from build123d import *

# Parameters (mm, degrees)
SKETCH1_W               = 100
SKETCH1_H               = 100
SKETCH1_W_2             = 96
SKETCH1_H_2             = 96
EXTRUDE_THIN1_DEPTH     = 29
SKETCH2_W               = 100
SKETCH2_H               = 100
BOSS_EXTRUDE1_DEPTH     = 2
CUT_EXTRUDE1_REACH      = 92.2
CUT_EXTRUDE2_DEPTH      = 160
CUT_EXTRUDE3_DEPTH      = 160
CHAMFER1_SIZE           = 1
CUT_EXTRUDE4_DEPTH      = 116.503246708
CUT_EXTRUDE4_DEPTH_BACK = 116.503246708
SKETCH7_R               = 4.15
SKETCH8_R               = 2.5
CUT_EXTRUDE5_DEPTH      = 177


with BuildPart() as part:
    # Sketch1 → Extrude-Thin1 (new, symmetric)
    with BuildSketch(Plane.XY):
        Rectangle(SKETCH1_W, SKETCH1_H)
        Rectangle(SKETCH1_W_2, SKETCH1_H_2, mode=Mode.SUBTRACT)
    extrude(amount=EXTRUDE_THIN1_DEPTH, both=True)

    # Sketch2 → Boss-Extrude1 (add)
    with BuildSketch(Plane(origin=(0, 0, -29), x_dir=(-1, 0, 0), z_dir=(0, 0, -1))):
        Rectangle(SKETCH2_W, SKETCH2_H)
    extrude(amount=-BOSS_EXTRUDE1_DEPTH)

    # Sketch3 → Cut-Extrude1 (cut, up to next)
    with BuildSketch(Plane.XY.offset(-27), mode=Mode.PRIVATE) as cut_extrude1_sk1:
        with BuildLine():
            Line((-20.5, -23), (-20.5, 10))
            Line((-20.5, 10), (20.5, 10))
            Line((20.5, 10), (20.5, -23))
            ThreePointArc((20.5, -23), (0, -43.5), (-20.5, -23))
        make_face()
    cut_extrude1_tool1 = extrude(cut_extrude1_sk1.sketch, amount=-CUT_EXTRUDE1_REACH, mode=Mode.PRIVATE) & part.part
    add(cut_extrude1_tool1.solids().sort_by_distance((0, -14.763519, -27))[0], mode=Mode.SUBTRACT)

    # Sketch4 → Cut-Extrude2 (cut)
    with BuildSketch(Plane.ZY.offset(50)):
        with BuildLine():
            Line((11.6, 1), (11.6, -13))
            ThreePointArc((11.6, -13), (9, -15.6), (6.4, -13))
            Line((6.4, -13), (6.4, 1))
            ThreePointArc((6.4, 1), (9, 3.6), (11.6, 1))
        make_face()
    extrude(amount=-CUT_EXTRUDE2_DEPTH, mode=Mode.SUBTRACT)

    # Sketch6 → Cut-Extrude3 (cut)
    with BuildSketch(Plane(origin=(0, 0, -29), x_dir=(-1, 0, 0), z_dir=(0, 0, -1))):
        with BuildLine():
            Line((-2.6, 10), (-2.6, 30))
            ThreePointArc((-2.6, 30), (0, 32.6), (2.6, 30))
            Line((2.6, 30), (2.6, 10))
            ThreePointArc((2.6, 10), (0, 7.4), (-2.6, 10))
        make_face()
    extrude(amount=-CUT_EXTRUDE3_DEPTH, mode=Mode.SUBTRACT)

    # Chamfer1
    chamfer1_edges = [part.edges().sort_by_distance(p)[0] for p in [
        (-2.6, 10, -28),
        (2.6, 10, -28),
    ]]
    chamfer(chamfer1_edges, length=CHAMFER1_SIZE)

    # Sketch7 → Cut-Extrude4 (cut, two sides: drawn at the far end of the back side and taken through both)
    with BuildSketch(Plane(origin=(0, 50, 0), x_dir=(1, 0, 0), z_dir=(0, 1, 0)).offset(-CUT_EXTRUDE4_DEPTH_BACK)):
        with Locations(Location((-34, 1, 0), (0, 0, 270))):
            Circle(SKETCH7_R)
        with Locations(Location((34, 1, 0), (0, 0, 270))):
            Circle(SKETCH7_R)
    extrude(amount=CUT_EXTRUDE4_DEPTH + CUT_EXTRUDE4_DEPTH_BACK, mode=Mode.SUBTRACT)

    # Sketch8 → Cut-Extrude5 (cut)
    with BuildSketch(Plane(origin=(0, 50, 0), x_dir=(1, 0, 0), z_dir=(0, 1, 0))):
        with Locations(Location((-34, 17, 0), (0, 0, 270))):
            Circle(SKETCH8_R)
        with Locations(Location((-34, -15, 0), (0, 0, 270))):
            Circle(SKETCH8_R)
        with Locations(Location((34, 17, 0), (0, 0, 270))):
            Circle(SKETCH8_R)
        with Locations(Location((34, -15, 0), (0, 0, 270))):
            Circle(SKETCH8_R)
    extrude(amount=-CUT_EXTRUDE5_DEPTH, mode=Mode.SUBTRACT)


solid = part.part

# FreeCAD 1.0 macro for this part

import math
import FreeCAD as App
import Part
import Sketcher
Q = App.Units.Quantity


def edges_at(feature, points):
    """Names of the edges that pass closest to the given points."""
    edges = feature.Shape.Edges
    near = lambda p: min(range(len(edges)), key=lambda i: edges[i].distToShape(Part.Vertex(*p))[0])
    return sorted({f"Edge{near(p) + 1}" for p in points})


def add_polygon(sketch, points):
    """Adds a closed chain of lines whose ends are joined by coincident constraints."""
    first, n = sketch.GeometryCount, len(points)
    for a, b in zip(points, points[1:] + points[:1]):
        sketch.addGeometry(Part.LineSegment(App.Vector(*a, 0), App.Vector(*b, 0)), False)
    for i in range(n):
        sketch.addConstraint(Sketcher.Constraint("Coincident", first + i, 2, first + (i + 1) % n, 1))

doc = App.newDocument("Part")
params = doc.addObject("Spreadsheet::Sheet", "Params")
for row, (alias, value) in enumerate([
    ("sketch1_width", "100 mm"),
    ("sketch1_width2", "96 mm"),
    ("pad1_length", "58 mm"),
    ("sketch2_width", "100 mm"),
    ("pad2_length", "2 mm"),
    ("sketch3_radius", "20.5 mm"),
    ("sketch3_height", "33 mm"),
    ("sketch4_radius", "2.6 mm"),
    ("sketch4_width", "14 mm"),
    ("pocket2_length", "160 mm"),
    ("sketch5_radius", "2.6 mm"),
    ("sketch5_height", "20 mm"),
    ("pocket3_length", "160 mm"),
    ("chamfer_size", "1 mm"),
    ("sketch6_diameter", "8.3 mm"),
    ("sketch7_diameter", "5 mm"),
    ("pocket5_length", "177 mm"),
], start=1):
    params.set(f"A{row}", alias)
    params.set(f"B{row}", "=" + value)
    params.setAlias(f"B{row}", alias)

body = doc.addObject("PartDesign::Body", "Body")

# Sketch on XY plane
sketch1 = body.newObject("Sketcher::SketchObject", "Sketch")
sketch1.AttachmentSupport = (doc.getObject("XY_Plane"), [""])
sketch1.MapMode = "FlatFace"
add_polygon(sketch1, [(-50, 50), (-50, -50), (50, -50), (50, 50)])  # lines 0-3
add_polygon(sketch1, [(48, -48), (-48, -48), (-48, 48), (48, 48)])  # lines 4-7
sketch1.addConstraint(Sketcher.Constraint("Vertical", 0))
sketch1.addConstraint(Sketcher.Constraint("Horizontal", 1))
sketch1.addConstraint(Sketcher.Constraint("Vertical", 2))
sketch1.addConstraint(Sketcher.Constraint("Horizontal", 3))
sketch1.addConstraint(Sketcher.Constraint("Horizontal", 4))
sketch1.addConstraint(Sketcher.Constraint("Vertical", 5))
sketch1.addConstraint(Sketcher.Constraint("Horizontal", 6))
sketch1.addConstraint(Sketcher.Constraint("Vertical", 7))
sketch1.addConstraint(Sketcher.Constraint("Symmetric", 0, 2, 2, 2, -1, 1))
sketch1.addConstraint(Sketcher.Constraint("Symmetric", 4, 2, 6, 2, -1, 1))
sketch1.addConstraint(Sketcher.Constraint("Equal", 3, 0))
sketch1.addConstraint(Sketcher.Constraint("Equal", 6, 5))
sketch1.addConstraint(Sketcher.Constraint("DistanceX", 1, 1, 1, 2, Q("100 mm")))
sketch1.addConstraint(Sketcher.Constraint("DistanceX", 4, 2, 4, 1, Q("96 mm")))
sketch1.setExpression("Constraints[20]", "Params.sketch1_width")
sketch1.setExpression("Constraints[21]", "Params.sketch1_width2")
pad1 = body.newObject("PartDesign::Pad", "Pad")
pad1.Profile = sketch1
pad1.setExpression("Length", "Params.pad1_length")
pad1.Midplane = True

# Sketch on XY plane
sketch2 = body.newObject("Sketcher::SketchObject", "Sketch001")
sketch2.AttachmentSupport = (doc.getObject("XY_Plane"), [""])
sketch2.MapMode = "FlatFace"
sketch2.AttachmentOffset = App.Placement(App.Vector(0, 0, -29), App.Rotation())
add_polygon(sketch2, [(50, 50), (50, -50), (-50, -50), (-50, 50)])  # lines 0-3
sketch2.addConstraint(Sketcher.Constraint("Vertical", 0))
sketch2.addConstraint(Sketcher.Constraint("Horizontal", 1))
sketch2.addConstraint(Sketcher.Constraint("Vertical", 2))
sketch2.addConstraint(Sketcher.Constraint("Horizontal", 3))
sketch2.addConstraint(Sketcher.Constraint("Symmetric", 0, 2, 2, 2, -1, 1))
sketch2.addConstraint(Sketcher.Constraint("Equal", 3, 0))
sketch2.addConstraint(Sketcher.Constraint("DistanceX", 1, 2, 1, 1, Q("100 mm")))
sketch2.setExpression("Constraints[10]", "Params.sketch2_width")
pad2 = body.newObject("PartDesign::Pad", "Pad001")
pad2.Profile = sketch2
pad2.setExpression("Length", "Params.pad2_length")

# Sketch on XY plane
sketch3 = body.newObject("Sketcher::SketchObject", "Sketch002")
sketch3.AttachmentSupport = (doc.getObject("XY_Plane"), [""])
sketch3.MapMode = "FlatFace"
sketch3.AttachmentOffset = App.Placement(App.Vector(0, 0, -27), App.Rotation())
sketch3.addGeometry(Part.LineSegment(App.Vector(-20.5, 10, 0), App.Vector(-20.5, -23, 0)), False)
sketch3.addGeometry(Part.ArcOfCircle(Part.Circle(App.Vector(0, -23, 0), App.Vector(0, 0, 1), 20.5), math.radians(180), math.radians(360)), False)
sketch3.addGeometry(Part.LineSegment(App.Vector(20.5, -23, 0), App.Vector(20.5, 10, 0)), False)
sketch3.addGeometry(Part.LineSegment(App.Vector(20.5, 10, 0), App.Vector(-20.5, 10, 0)), False)
sketch3.addConstraint(Sketcher.Constraint("Tangent", 0, 2, 1, 1))
sketch3.addConstraint(Sketcher.Constraint("Tangent", 1, 2, 2, 1))
sketch3.addConstraint(Sketcher.Constraint("Coincident", 2, 2, 3, 1))
sketch3.addConstraint(Sketcher.Constraint("Coincident", 3, 2, 0, 1))
sketch3.addConstraint(Sketcher.Constraint("Vertical", 0))
sketch3.addConstraint(Sketcher.Constraint("Vertical", 2))
sketch3.addConstraint(Sketcher.Constraint("Horizontal", 3))
sketch3.addConstraint(Sketcher.Constraint("PointOnObject", 1, 3, -2))
sketch3.addConstraint(Sketcher.Constraint("Radius", 1, Q("20.5 mm")))
sketch3.addConstraint(Sketcher.Constraint("DistanceY", 0, 2, 0, 1, Q("33 mm")))
sketch3.addConstraint(Sketcher.Constraint("DistanceY", 1, 3, -1, 1, Q("23 mm")))
sketch3.setExpression("Constraints[8]", "Params.sketch3_radius")
sketch3.setExpression("Constraints[9]", "Params.sketch3_height")
pocket1 = body.newObject("PartDesign::Pocket", "Pocket")
pocket1.Profile = sketch3
pocket1.Type = "UpToFirst"

# Sketch on YZ plane
sketch4 = body.newObject("Sketcher::SketchObject", "Sketch003")
sketch4.AttachmentSupport = (doc.getObject("YZ_Plane"), [""])
sketch4.MapMode = "FlatFace"
sketch4.AttachmentOffset = App.Placement(App.Vector(0, 0, -50), App.Rotation())
sketch4.addGeometry(Part.LineSegment(App.Vector(-13, 11.6, 0), App.Vector(1, 11.6, 0)), False)
sketch4.addGeometry(Part.ArcOfCircle(Part.Circle(App.Vector(1, 9, 0), App.Vector(0, 0, 1), 2.6), math.radians(-90), math.radians(90)), False)
sketch4.addGeometry(Part.LineSegment(App.Vector(1, 6.4, 0), App.Vector(-13, 6.4, 0)), False)
sketch4.addGeometry(Part.ArcOfCircle(Part.Circle(App.Vector(-13, 9, 0), App.Vector(0, 0, 1), 2.6), math.radians(90), math.radians(270)), False)
sketch4.addConstraint(Sketcher.Constraint("Tangent", 0, 2, 1, 2))
sketch4.addConstraint(Sketcher.Constraint("Tangent", 1, 1, 2, 1))
sketch4.addConstraint(Sketcher.Constraint("Tangent", 2, 2, 3, 2))
sketch4.addConstraint(Sketcher.Constraint("Tangent", 3, 1, 0, 1))
sketch4.addConstraint(Sketcher.Constraint("Horizontal", 0))
sketch4.addConstraint(Sketcher.Constraint("Horizontal", 2))
sketch4.addConstraint(Sketcher.Constraint("Radius", 1, Q("2.6 mm")))
sketch4.addConstraint(Sketcher.Constraint("DistanceX", 0, 1, 0, 2, Q("14 mm")))
sketch4.addConstraint(Sketcher.Constraint("DistanceX", -1, 1, 1, 3, Q("1 mm")))
sketch4.addConstraint(Sketcher.Constraint("DistanceY", -1, 1, 1, 3, Q("9 mm")))
sketch4.setExpression("Constraints[6]", "Params.sketch4_radius")
sketch4.setExpression("Constraints[7]", "Params.sketch4_width")
pocket2 = body.newObject("PartDesign::Pocket", "Pocket001")
pocket2.Profile = sketch4
pocket2.setExpression("Length", "Params.pocket2_length")
pocket2.Reversed = True

# Sketch on XY plane
sketch5 = body.newObject("Sketcher::SketchObject", "Sketch004")
sketch5.AttachmentSupport = (doc.getObject("XY_Plane"), [""])
sketch5.MapMode = "FlatFace"
sketch5.AttachmentOffset = App.Placement(App.Vector(0, 0, -29), App.Rotation())
sketch5.addGeometry(Part.LineSegment(App.Vector(2.6, 30, 0), App.Vector(2.6, 10, 0)), False)
sketch5.addGeometry(Part.ArcOfCircle(Part.Circle(App.Vector(0, 10, 0), App.Vector(0, 0, 1), 2.6), math.radians(180), math.radians(360)), False)
sketch5.addGeometry(Part.LineSegment(App.Vector(-2.6, 10, 0), App.Vector(-2.6, 30, 0)), False)
sketch5.addGeometry(Part.ArcOfCircle(Part.Circle(App.Vector(0, 30, 0), App.Vector(0, 0, 1), 2.6), math.radians(0), math.radians(180)), False)
sketch5.addConstraint(Sketcher.Constraint("Tangent", 0, 2, 1, 2))
sketch5.addConstraint(Sketcher.Constraint("Tangent", 1, 1, 2, 1))
sketch5.addConstraint(Sketcher.Constraint("Tangent", 2, 2, 3, 2))
sketch5.addConstraint(Sketcher.Constraint("Tangent", 3, 1, 0, 1))
sketch5.addConstraint(Sketcher.Constraint("Vertical", 0))
sketch5.addConstraint(Sketcher.Constraint("Vertical", 2))
sketch5.addConstraint(Sketcher.Constraint("PointOnObject", 1, 3, -2))
sketch5.addConstraint(Sketcher.Constraint("Radius", 1, Q("2.6 mm")))
sketch5.addConstraint(Sketcher.Constraint("DistanceY", 0, 2, 0, 1, Q("20 mm")))
sketch5.addConstraint(Sketcher.Constraint("DistanceY", -1, 1, 1, 3, Q("10 mm")))
sketch5.setExpression("Constraints[7]", "Params.sketch5_radius")
sketch5.setExpression("Constraints[8]", "Params.sketch5_height")
pocket3 = body.newObject("PartDesign::Pocket", "Pocket002")
pocket3.Profile = sketch5
pocket3.setExpression("Length", "Params.pocket3_length")
pocket3.Reversed = True
doc.recompute()

chamfer = body.newObject("PartDesign::Chamfer", "Chamfer")
chamfer.Base = (pocket3, edges_at(pocket3, [(-2.6, 10, -28), (2.6, 10, -28)]))
chamfer.setExpression("Size", "Params.chamfer_size")

# Sketch on XZ plane
sketch6 = body.newObject("Sketcher::SketchObject", "Sketch005")
sketch6.AttachmentSupport = (doc.getObject("XZ_Plane"), [""])
sketch6.MapMode = "FlatFace"
sketch6.AttachmentOffset = App.Placement(App.Vector(0, 0, -50), App.Rotation())
sketch6.addGeometry(Part.Circle(App.Vector(-34, -1, 0), App.Vector(0, 0, 1), 4.15), False)
sketch6.addGeometry(Part.Circle(App.Vector(34, -1, 0), App.Vector(0, 0, 1), 4.15), False)
sketch6.addConstraint(Sketcher.Constraint("Equal", 0, 1))
sketch6.addConstraint(Sketcher.Constraint("Symmetric", 0, 3, 1, 3, -2))
sketch6.addConstraint(Sketcher.Constraint("Diameter", 0, Q("8.3 mm")))
sketch6.addConstraint(Sketcher.Constraint("DistanceX", 0, 3, -1, 1, Q("34 mm")))
sketch6.addConstraint(Sketcher.Constraint("DistanceY", 0, 3, -1, 1, Q("1 mm")))
sketch6.setExpression("Constraints[2]", "Params.sketch6_diameter")
pocket4 = body.newObject("PartDesign::Pocket", "Pocket003")
pocket4.Profile = sketch6
pocket4.Type = "ThroughAll"
pocket4.Midplane = True

# Sketch on XZ plane
sketch7 = body.newObject("Sketcher::SketchObject", "Sketch006")
sketch7.AttachmentSupport = (doc.getObject("XZ_Plane"), [""])
sketch7.MapMode = "FlatFace"
sketch7.AttachmentOffset = App.Placement(App.Vector(0, 0, -50), App.Rotation())
sketch7.addGeometry(Part.Circle(App.Vector(-34, -17, 0), App.Vector(0, 0, 1), 2.5), False)
sketch7.addGeometry(Part.Circle(App.Vector(-34, 15, 0), App.Vector(0, 0, 1), 2.5), False)
sketch7.addGeometry(Part.Circle(App.Vector(34, -17, 0), App.Vector(0, 0, 1), 2.5), False)
sketch7.addGeometry(Part.Circle(App.Vector(34, 15, 0), App.Vector(0, 0, 1), 2.5), False)
sketch7.addConstraint(Sketcher.Constraint("Equal", 0, 1))
sketch7.addConstraint(Sketcher.Constraint("Equal", 1, 2))
sketch7.addConstraint(Sketcher.Constraint("Equal", 2, 3))
sketch7.addConstraint(Sketcher.Constraint("Symmetric", 0, 3, 2, 3, -2))
sketch7.addConstraint(Sketcher.Constraint("Symmetric", 1, 3, 3, 3, -2))
sketch7.addConstraint(Sketcher.Constraint("Vertical", 0, 3, 1, 3))
sketch7.addConstraint(Sketcher.Constraint("Diameter", 0, Q("5 mm")))
sketch7.addConstraint(Sketcher.Constraint("DistanceX", 0, 3, -1, 1, Q("34 mm")))
sketch7.addConstraint(Sketcher.Constraint("DistanceY", 0, 3, -1, 1, Q("17 mm")))
sketch7.addConstraint(Sketcher.Constraint("DistanceY", -1, 1, 1, 3, Q("15 mm")))
sketch7.setExpression("Constraints[6]", "Params.sketch7_diameter")
pocket5 = body.newObject("PartDesign::Pocket", "Pocket004")
pocket5.Profile = sketch7
pocket5.setExpression("Length", "Params.pocket5_length")
pocket5.Reversed = True

doc.recompute()
